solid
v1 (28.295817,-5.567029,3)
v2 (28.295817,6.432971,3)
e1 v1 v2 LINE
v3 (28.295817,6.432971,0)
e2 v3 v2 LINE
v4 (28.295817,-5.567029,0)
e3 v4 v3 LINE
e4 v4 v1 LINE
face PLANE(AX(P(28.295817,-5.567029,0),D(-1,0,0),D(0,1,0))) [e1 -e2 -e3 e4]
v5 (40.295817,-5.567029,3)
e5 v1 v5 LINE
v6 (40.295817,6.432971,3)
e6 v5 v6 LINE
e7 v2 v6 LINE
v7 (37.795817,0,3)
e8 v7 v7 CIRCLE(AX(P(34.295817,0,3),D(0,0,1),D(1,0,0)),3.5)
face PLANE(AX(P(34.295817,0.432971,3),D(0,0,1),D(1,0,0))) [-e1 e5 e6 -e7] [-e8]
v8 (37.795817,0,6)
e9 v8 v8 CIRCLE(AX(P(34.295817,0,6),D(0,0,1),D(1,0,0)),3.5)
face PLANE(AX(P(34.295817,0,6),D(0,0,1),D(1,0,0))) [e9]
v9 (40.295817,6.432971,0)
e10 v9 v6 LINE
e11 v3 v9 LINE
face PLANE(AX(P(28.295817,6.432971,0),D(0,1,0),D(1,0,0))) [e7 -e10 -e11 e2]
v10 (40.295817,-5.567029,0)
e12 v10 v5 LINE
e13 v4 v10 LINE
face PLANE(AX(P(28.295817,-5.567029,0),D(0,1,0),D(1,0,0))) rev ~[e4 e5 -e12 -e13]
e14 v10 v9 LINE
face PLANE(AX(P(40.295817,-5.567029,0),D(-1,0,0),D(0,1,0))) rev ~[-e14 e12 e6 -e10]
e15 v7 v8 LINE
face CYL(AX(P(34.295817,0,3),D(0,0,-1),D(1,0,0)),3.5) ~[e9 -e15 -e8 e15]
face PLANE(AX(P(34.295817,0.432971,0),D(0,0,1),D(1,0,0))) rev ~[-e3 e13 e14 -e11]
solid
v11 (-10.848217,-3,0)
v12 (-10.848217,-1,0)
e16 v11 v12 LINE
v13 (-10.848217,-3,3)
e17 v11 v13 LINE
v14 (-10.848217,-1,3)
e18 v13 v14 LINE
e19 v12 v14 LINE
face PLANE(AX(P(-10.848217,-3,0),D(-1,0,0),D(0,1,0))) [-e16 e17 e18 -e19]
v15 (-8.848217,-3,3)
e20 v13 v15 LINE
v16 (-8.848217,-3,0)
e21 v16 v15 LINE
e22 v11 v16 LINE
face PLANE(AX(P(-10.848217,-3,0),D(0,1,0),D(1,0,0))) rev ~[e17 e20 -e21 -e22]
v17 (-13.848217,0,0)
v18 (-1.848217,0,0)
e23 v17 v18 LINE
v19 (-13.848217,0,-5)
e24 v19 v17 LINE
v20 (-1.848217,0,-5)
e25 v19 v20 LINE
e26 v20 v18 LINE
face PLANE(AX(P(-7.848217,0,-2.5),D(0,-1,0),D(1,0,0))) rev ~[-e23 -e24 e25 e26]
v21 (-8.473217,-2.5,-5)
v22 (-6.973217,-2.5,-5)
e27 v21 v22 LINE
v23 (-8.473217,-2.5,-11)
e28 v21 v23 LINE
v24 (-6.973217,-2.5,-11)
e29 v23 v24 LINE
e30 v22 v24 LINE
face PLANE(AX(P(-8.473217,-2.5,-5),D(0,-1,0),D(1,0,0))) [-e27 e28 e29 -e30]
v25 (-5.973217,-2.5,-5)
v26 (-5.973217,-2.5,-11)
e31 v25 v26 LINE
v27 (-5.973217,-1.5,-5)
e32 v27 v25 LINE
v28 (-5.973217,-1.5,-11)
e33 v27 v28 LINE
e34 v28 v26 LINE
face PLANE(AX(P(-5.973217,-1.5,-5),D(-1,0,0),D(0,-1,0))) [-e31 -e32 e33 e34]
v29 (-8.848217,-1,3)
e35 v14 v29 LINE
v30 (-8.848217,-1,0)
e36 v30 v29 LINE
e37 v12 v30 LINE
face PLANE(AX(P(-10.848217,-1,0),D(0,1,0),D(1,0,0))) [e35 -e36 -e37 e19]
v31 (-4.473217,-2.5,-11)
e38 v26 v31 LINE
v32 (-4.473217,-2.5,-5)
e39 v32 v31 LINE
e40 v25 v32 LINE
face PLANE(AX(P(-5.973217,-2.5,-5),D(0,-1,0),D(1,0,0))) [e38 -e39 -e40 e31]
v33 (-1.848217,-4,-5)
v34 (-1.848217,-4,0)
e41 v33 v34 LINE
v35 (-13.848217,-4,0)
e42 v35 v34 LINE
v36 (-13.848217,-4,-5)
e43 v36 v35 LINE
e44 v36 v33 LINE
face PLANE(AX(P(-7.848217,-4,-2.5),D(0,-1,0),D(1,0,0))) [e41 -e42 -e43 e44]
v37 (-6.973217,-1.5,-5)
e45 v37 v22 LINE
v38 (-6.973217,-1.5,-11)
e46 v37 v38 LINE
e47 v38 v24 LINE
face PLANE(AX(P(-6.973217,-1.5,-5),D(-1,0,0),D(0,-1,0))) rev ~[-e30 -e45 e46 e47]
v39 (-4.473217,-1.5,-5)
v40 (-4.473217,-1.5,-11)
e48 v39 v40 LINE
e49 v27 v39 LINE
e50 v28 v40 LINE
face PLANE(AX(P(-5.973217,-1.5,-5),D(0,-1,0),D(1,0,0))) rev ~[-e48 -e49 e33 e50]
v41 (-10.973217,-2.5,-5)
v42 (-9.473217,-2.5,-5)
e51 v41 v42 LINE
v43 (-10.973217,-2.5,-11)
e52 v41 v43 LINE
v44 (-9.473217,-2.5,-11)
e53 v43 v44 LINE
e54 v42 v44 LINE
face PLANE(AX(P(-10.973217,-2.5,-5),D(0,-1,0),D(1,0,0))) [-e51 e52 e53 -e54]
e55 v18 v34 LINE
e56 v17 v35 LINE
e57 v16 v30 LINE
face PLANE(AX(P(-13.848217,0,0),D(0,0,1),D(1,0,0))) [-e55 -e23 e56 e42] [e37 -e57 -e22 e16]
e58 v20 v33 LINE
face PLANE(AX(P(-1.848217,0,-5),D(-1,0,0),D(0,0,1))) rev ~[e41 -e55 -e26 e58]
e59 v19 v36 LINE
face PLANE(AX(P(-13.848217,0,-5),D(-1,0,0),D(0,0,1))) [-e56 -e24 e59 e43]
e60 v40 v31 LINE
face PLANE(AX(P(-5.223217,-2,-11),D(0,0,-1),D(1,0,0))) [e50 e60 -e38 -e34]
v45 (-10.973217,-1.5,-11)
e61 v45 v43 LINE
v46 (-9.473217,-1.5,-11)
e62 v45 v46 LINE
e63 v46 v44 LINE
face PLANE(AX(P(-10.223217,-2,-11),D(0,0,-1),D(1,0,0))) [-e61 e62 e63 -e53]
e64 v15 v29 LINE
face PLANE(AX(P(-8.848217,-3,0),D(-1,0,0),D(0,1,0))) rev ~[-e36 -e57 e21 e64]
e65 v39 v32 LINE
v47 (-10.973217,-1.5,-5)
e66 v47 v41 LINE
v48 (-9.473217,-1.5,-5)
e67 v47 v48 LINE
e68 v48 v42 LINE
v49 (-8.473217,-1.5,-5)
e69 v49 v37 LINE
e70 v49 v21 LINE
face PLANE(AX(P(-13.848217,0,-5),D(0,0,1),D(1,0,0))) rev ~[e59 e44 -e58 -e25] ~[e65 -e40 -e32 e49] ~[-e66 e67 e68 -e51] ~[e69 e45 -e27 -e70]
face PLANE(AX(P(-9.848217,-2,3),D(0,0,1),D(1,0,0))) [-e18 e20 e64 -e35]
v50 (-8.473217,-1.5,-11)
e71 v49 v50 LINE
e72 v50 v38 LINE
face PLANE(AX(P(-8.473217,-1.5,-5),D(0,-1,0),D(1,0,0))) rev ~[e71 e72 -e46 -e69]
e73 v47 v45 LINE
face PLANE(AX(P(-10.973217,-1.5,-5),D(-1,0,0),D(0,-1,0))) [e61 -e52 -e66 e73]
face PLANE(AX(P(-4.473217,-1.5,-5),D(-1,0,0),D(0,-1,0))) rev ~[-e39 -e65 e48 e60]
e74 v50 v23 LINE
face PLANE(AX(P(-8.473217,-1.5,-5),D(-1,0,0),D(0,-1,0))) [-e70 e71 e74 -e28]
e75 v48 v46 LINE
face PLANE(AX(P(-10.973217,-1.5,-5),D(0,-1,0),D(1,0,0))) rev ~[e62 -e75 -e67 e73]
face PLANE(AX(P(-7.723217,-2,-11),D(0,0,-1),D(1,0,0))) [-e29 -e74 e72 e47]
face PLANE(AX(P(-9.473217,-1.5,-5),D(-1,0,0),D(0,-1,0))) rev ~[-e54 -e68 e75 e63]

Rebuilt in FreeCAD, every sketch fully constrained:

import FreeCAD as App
import Part
import Sketcher

V = App.Vector
Q = App.Units.Quantity


def add_polygon(sketch, points):
    """Adds a closed chain of lines whose ends are joined by coincident constraints."""
    first, n = sketch.GeometryCount, len(points)
    for a, b in zip(points, points[1:] + points[:1]):
        sketch.addGeometry(Part.LineSegment(App.Vector(*a, 0), App.Vector(*b, 0)), False)
    for i in range(n):
        sketch.addConstraint(Sketcher.Constraint("Coincident", first + i, 2, first + (i + 1) % n, 1))

doc = App.newDocument("Part")
body = doc.addObject("PartDesign::Body", "Body")

sketch1 = doc.addObject("Sketcher::SketchObject", "Sketch")
body.addObject(sketch1)
sketch1.AttachmentSupport = (doc.XZ_Plane, [""])
sketch1.MapMode = "FlatFace"
add_polygon(sketch1, [(-14, 0), (-14, -5), (-2, -5), (-2, 0)])
sketch1.addConstraint([
    Sketcher.Constraint("Vertical", 0),
    Sketcher.Constraint("Horizontal", 1),
    Sketcher.Constraint("Vertical", 2),
    Sketcher.Constraint("Horizontal", 3),
    Sketcher.Constraint("PointOnObject", 2, 2, -1),
    Sketcher.Constraint("DistanceX", 1, 1, 1, 2, Q("12 mm")),
    Sketcher.Constraint("DistanceY", 0, 2, 0, 1, Q("5 mm")),
    Sketcher.Constraint("DistanceX", 0, 2, -1, 1, Q("13.848217 mm")),
])
pad1 = doc.addObject("PartDesign::Pad", "Pad")
body.addObject(pad1)
pad1.Profile = sketch1
pad1.Length = 4

sketch2 = doc.addObject("Sketcher::SketchObject", "Sketch001")
body.addObject(sketch2)
sketch2.AttachmentSupport = (doc.XY_Plane, [""])
sketch2.MapMode = "FlatFace"
add_polygon(sketch2, [(-10.8, -1), (-10.8, -3), (-8.8, -3), (-8.8, -1)])
sketch2.addConstraint([
    Sketcher.Constraint("Vertical", 0),
    Sketcher.Constraint("Horizontal", 1),
    Sketcher.Constraint("Vertical", 2),
    Sketcher.Constraint("Horizontal", 3),
    Sketcher.Constraint("Equal", 3, 0),
    Sketcher.Constraint("DistanceX", 1, 1, 1, 2, Q("2 mm")),
    Sketcher.Constraint("DistanceY", 0, 2, -1, 1, Q("3 mm")),
    Sketcher.Constraint("DistanceX", 0, 2, -1, 1, Q("10.848217 mm")),
])
pad2 = doc.addObject("PartDesign::Pad", "Pad001")
body.addObject(pad2)
pad2.Profile = sketch2
pad2.Length = 3

sketch3 = doc.addObject("Sketcher::SketchObject", "Sketch002")
body.addObject(sketch3)
sketch3.AttachmentSupport = (doc.XY_Plane, [""])
sketch3.MapMode = "FlatFace"
sketch3.AttachmentOffset = App.Placement(V(0, 0, -5), App.Rotation())
add_polygon(sketch3, [(-11, -2.5), (-11, -1.5), (-9.5, -1.5), (-9.5, -2.5)])
add_polygon(sketch3, [(-8.5, -2.5), (-8.5, -1.5), (-7, -1.5), (-7, -2.5)])
add_polygon(sketch3, [(-6, -2.5), (-6, -1.5), (-4.5, -1.5), (-4.5, -2.5)])
sketch3.addConstraint([
    Sketcher.Constraint("Vertical", 0),
    Sketcher.Constraint("Horizontal", 1),
    Sketcher.Constraint("Vertical", 2),
    Sketcher.Constraint("Horizontal", 3),
    Sketcher.Constraint("Vertical", 4),
    Sketcher.Constraint("Horizontal", 5),
    Sketcher.Constraint("Vertical", 6),
    Sketcher.Constraint("Horizontal", 7),
    Sketcher.Constraint("Vertical", 8),
    Sketcher.Constraint("Horizontal", 9),
    Sketcher.Constraint("Vertical", 10),
    Sketcher.Constraint("Horizontal", 11),
    Sketcher.Constraint("Horizontal", 1, 2, 4, 2),
    Sketcher.Constraint("Horizontal", 3, 2, 6, 2),
    Sketcher.Constraint("Horizontal", 5, 2, 8, 2),
    Sketcher.Constraint("Horizontal", 7, 2, 10, 2),
    Sketcher.Constraint("Equal", 3, 5),
    Sketcher.Constraint("Equal", 7, 9),
    Sketcher.Constraint("DistanceY", 0, 1, 0, 2, Q("1 mm")),
    Sketcher.Constraint("DistanceX", 1, 1, 1, 2, Q("1.5 mm")),
    Sketcher.Constraint("DistanceX", 1, 2, 4, 2, Q("1 mm")),
    Sketcher.Constraint("DistanceX", 5, 2, 8, 2, Q("1 mm")),
    Sketcher.Constraint("DistanceY", 0, 2, -1, 1, Q("1.5 mm")),
    Sketcher.Constraint("DistanceX", 0, 2, -1, 1, Q("10.973217 mm")),
])
pad3 = doc.addObject("PartDesign::Pad", "Pad002")
body.addObject(pad3)
pad3.Profile = sketch3
pad3.Length = 6
pad3.Reversed = True
body2 = doc.addObject("PartDesign::Body", "Body001")

sketch4 = doc.addObject("Sketcher::SketchObject", "Sketch003")
body2.addObject(sketch4)
sketch4.AttachmentSupport = (doc.getObject("XY_Plane001"), [""])
sketch4.MapMode = "FlatFace"
add_polygon(sketch4, [(28, 6), (28, -6), (40, -6), (40, 6)])
sketch4.addConstraint([
    Sketcher.Constraint("Vertical", 0),
    Sketcher.Constraint("Horizontal", 1),
    Sketcher.Constraint("Vertical", 2),
    Sketcher.Constraint("Horizontal", 3),
    Sketcher.Constraint("Equal", 3, 0),
    Sketcher.Constraint("DistanceX", 1, 1, 1, 2, Q("12 mm")),
    Sketcher.Constraint("DistanceY", 0, 2, -1, 1, Q("5.567029 mm")),
    Sketcher.Constraint("DistanceX", -1, 1, 0, 2, Q("28.295817 mm")),
])
pad4 = doc.addObject("PartDesign::Pad", "Pad003")
body2.addObject(pad4)
pad4.Profile = sketch4
pad4.Length = 3

sketch5 = doc.addObject("Sketcher::SketchObject", "Sketch004")
body2.addObject(sketch5)
sketch5.AttachmentSupport = (doc.getObject("XY_Plane001"), [""])
sketch5.MapMode = "FlatFace"
sketch5.AttachmentOffset = App.Placement(V(0, 0, 3), App.Rotation())
sketch5.addGeometry(Part.Circle(V(34.3, 0, 0), V(0, 0, 1), 3.5), False)
sketch5.addConstraint([
    Sketcher.Constraint("PointOnObject", 0, 3, -1),
    Sketcher.Constraint("Diameter", 0, Q("7 mm")),
    Sketcher.Constraint("DistanceX", -1, 1, 0, 3, Q("34.295817 mm")),
])
pad5 = doc.addObject("PartDesign::Pad", "Pad004")
body2.addObject(pad5)
pad5.Profile = sketch5
pad5.Length = 3

doc.recompute()
